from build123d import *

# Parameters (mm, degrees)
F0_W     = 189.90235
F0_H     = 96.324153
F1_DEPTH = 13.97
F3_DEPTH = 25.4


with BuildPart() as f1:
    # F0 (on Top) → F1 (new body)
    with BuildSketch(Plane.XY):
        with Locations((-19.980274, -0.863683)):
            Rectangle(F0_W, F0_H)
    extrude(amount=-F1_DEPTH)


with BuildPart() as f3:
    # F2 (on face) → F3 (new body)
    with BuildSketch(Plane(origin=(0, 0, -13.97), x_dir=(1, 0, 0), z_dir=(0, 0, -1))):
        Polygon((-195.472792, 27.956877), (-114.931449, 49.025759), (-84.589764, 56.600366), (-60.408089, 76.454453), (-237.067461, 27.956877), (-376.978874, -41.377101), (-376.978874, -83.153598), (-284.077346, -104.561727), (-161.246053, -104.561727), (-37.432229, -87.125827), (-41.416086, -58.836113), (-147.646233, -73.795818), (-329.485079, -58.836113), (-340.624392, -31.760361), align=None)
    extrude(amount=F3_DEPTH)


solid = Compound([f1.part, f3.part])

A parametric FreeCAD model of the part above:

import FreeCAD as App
import Part
import Sketcher

V = App.Vector
Q = App.Units.Quantity

doc = App.newDocument("Part")
body = doc.addObject("PartDesign::Body", "Body")

sketch1 = body.newObject("Sketcher::SketchObject", "Sketch")
sketch1.AttachmentSupport = (doc.getObject("XY_Plane"), [""])
sketch1.MapMode = "FlatFace"
sketch1.addGeometry([
    Part.LineSegment(V(-115, 47, 0), V(-115, -49, 0)),
    Part.LineSegment(V(-115, -49, 0), V(75, -49, 0)),
    Part.LineSegment(V(75, -49, 0), V(75, 47, 0)),
    Part.LineSegment(V(75, 47, 0), V(-115, 47, 0)),
], False)
sketch1.addConstraint([
    Sketcher.Constraint("Coincident", 0, 2, 1, 1),
    Sketcher.Constraint("Coincident", 1, 2, 2, 1),
    Sketcher.Constraint("Coincident", 2, 2, 3, 1),
    Sketcher.Constraint("Coincident", 3, 2, 0, 1),
    Sketcher.Constraint("Vertical", 0),
    Sketcher.Constraint("Horizontal", 1),
    Sketcher.Constraint("Vertical", 2),
    Sketcher.Constraint("Horizontal", 3),
    Sketcher.Constraint("DistanceX", 1, 1, 1, 2, Q("189.90235 mm")),
    Sketcher.Constraint("DistanceX", -1, 1, 1, 2, Q("74.970901 mm")),
    Sketcher.Constraint("DistanceY", 0, 2, 0, 1, Q("96.324153 mm")),
    Sketcher.Constraint("DistanceY", 0, 2, -1, 1, Q("49.025759 mm")),
])
pad1 = body.newObject("PartDesign::Pad", "Pad")
pad1.Profile = sketch1
pad1.Length = Q("0.55 in")
pad1.Reversed = True
body2 = doc.addObject("PartDesign::Body", "Body001")

sketch2 = body2.newObject("Sketcher::SketchObject", "Sketch001")
sketch2.AttachmentSupport = (doc.getObject("XY_Plane001"), [""])
sketch2.MapMode = "FlatFace"
sketch2.AttachmentOffset = App.Placement(V(0, 0, -0.55 * 25.4), App.Rotation())
sketch2.addGeometry([
    Part.LineSegment(V(-195, -28, 0), V(-115, -49, 0)),
    Part.LineSegment(V(-115, -49, 0), V(-85, -57, 0)),
    Part.LineSegment(V(-85, -57, 0), V(-60, -76, 0)),
    Part.LineSegment(V(-60, -76, 0), V(-237, -28, 0)),
    Part.LineSegment(V(-237, -28, 0), V(-377, 41, 0)),
    Part.LineSegment(V(-377, 41, 0), V(-377, 83, 0)),
    Part.LineSegment(V(-377, 83, 0), V(-284, 105, 0)),
    Part.LineSegment(V(-284, 105, 0), V(-161, 105, 0)),
    Part.LineSegment(V(-161, 105, 0), V(-37, 87, 0)),
    Part.LineSegment(V(-37, 87, 0), V(-41, 59, 0)),
    Part.LineSegment(V(-41, 59, 0), V(-148, 74, 0)),
    Part.LineSegment(V(-148, 74, 0), V(-329, 59, 0)),
    Part.LineSegment(V(-329, 59, 0), V(-341, 32, 0)),
    Part.LineSegment(V(-341, 32, 0), V(-195, -28, 0)),
], False)
sketch2.addConstraint([
    Sketcher.Constraint("Coincident", 0, 2, 1, 1),
    Sketcher.Constraint("Coincident", 1, 2, 2, 1),
    Sketcher.Constraint("Coincident", 2, 2, 3, 1),
    Sketcher.Constraint("Coincident", 3, 2, 4, 1),
    Sketcher.Constraint("Coincident", 4, 2, 5, 1),
    Sketcher.Constraint("Coincident", 5, 2, 6, 1),
    Sketcher.Constraint("Coincident", 6, 2, 7, 1),
    Sketcher.Constraint("Coincident", 7, 2, 8, 1),
    Sketcher.Constraint("Coincident", 8, 2, 9, 1),
    Sketcher.Constraint("Coincident", 9, 2, 10, 1),
    Sketcher.Constraint("Coincident", 10, 2, 11, 1),
    Sketcher.Constraint("Coincident", 11, 2, 12, 1),
    Sketcher.Constraint("Coincident", 12, 2, 13, 1),
    Sketcher.Constraint("Coincident", 13, 2, 0, 1),
    Sketcher.Constraint("Vertical", 5),
    Sketcher.Constraint("Horizontal", 7),
    Sketcher.Constraint("Perpendicular", 8, 9),
    Sketcher.Constraint("Perpendicular", 9, 10),
    Sketcher.Constraint("Perpendicular", 12, 13),
    Sketcher.Constraint("Horizontal", 9, 2, 11, 2),
    Sketcher.Constraint("Horizontal", 3, 2, 13, 2),
    Sketcher.Constraint("DistanceY", -1, 1, 4, 2, Q("41.377101 mm")),
    Sketcher.Constraint("DistanceY", -1, 1, 5, 2, Q("83.153598 mm")),
    Sketcher.Constraint("DistanceY", 8, 2, 7, 2, Q("17.4359 mm")),
    Sketcher.Constraint("Distance", 0, Q("83.251461 mm")),
    Sketcher.Constraint("Distance", 1, Q("31.272872 mm")),
    Sketcher.Constraint("Distance", 4, Q("156.14866 mm")),
    Sketcher.Constraint("Distance", 8, Q("125.035489 mm")),
    Sketcher.Constraint("Distance", 11, Q("182.453168 mm")),
    Sketcher.Constraint("Distance", 13, Q("156.955839 mm")),
    Sketcher.Constraint("DistanceX", 7, 1, 7, 2, Q("122.831293 mm")),
    Sketcher.Constraint("DistanceX", 0, 2, -1, 1, Q("114.931449 mm")),
    Sketcher.Constraint("DistanceY", 0, 2, -1, 1, Q("49.025759 mm")),
    Sketcher.Constraint("DistanceX", 2, 2, -1, 1, Q("60.408089 mm")),
    Sketcher.Constraint("DistanceX", 3, 2, -1, 1, Q("237.067461 mm")),
    Sketcher.Constraint("DistanceX", 8, 2, -1, 1, Q("37.432229 mm")),
    Sketcher.Constraint("DistanceX", 11, 2, -1, 1, Q("329.485079 mm")),
    Sketcher.Constraint("DistanceX", 12, 2, -1, 1, Q("340.624392 mm")),
    Sketcher.Constraint("DistanceY", -1, 1, 12, 2, Q("31.760361 mm")),
    Sketcher.Constraint("DistanceY", 1, 2, 3, 2, Q("28.643489 mm")),
    Sketcher.Constraint("DistanceY", 2, 2, 5, 2, Q("159.608051 mm")),
    Sketcher.Constraint("DistanceY", 5, 2, 6, 2, Q("21.408129 mm")),
])
pad2 = body2.newObject("PartDesign::Pad", "Pad001")
pad2.Profile = sketch2
pad2.Length = Q("1 in")
pad2.Reversed = True

doc.recompute()
